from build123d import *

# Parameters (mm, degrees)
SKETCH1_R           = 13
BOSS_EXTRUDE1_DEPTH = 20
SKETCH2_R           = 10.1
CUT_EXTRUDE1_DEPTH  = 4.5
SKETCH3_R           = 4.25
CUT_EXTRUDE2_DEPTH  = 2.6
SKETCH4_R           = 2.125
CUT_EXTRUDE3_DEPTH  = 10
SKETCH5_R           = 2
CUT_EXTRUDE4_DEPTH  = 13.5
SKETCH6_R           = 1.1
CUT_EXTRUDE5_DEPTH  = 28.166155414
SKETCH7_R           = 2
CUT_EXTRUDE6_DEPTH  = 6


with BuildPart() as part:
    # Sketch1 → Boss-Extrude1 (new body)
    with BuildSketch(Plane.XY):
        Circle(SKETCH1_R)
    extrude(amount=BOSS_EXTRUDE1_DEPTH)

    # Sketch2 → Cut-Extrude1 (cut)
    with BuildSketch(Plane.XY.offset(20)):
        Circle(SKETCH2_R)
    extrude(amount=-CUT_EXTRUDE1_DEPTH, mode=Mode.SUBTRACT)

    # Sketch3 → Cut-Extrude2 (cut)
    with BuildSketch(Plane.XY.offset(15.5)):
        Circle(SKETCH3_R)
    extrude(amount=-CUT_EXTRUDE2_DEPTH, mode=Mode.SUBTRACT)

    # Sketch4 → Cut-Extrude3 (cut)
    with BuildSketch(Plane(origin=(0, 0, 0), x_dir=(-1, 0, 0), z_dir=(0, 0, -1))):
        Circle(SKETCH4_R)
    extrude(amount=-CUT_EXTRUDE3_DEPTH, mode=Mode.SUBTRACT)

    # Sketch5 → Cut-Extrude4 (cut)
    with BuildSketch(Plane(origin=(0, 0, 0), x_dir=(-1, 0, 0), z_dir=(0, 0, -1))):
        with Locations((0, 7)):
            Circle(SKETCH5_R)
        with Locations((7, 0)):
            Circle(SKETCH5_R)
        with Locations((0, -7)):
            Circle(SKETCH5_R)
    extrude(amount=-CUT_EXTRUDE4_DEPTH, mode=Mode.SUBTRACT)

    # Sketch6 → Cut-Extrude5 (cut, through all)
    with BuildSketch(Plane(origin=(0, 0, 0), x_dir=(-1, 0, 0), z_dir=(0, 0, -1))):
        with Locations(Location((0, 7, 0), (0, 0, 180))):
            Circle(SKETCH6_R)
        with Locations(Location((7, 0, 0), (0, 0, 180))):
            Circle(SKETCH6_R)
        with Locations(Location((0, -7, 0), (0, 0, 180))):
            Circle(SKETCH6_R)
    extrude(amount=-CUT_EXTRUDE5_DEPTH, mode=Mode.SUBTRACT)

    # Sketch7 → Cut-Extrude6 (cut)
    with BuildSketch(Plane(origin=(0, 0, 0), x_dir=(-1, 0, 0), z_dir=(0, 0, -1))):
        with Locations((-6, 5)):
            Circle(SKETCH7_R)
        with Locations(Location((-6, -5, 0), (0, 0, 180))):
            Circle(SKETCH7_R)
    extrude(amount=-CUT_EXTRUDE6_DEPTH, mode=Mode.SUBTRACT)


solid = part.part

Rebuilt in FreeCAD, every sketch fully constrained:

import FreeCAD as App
import Part
import Sketcher
from FreeCAD import Vector
Q = App.Units.Quantity

doc = App.newDocument("Part")
body = doc.addObject("PartDesign::Body", "Body")

# Sketch on XY plane
sketch1 = body.newObject("Sketcher::SketchObject", "Sketch")
sketch1.AttachmentSupport = (doc.getObject("XY_Plane"), [""])
sketch1.MapMode = "FlatFace"
sketch1.addGeometry(Part.Circle(Vector(0, 0, 0), Vector(0, 0, 1), 13), False)
sketch1.addConstraint(Sketcher.Constraint("Coincident", 0, 3, -1, 1))
sketch1.addConstraint(Sketcher.Constraint("Diameter", 0, Q("26 mm")))
pad1 = body.newObject("PartDesign::Pad", "Pad")
pad1.Profile = sketch1
pad1.Length = 20

# Sketch on XY plane
sketch2 = body.newObject("Sketcher::SketchObject", "Sketch001")
sketch2.AttachmentSupport = (doc.getObject("XY_Plane"), [""])
sketch2.MapMode = "FlatFace"
sketch2.AttachmentOffset = App.Placement(Vector(0, 0, 20), App.Rotation())
sketch2.addGeometry(Part.Circle(Vector(0, 0, 0), Vector(0, 0, 1), 10), False)
sketch2.addConstraint(Sketcher.Constraint("Coincident", 0, 3, -1, 1))
sketch2.addConstraint(Sketcher.Constraint("Diameter", 0, Q("20.2 mm")))
pocket1 = body.newObject("PartDesign::Pocket", "Pocket")
pocket1.Profile = sketch2
pocket1.Length = 4.5

# Sketch on XY plane
sketch3 = body.newObject("Sketcher::SketchObject", "Sketch002")
sketch3.AttachmentSupport = (doc.getObject("XY_Plane"), [""])
sketch3.MapMode = "FlatFace"
sketch3.AttachmentOffset = App.Placement(Vector(0, 0, 15.5), App.Rotation())
sketch3.addGeometry(Part.Circle(Vector(0, 0, 0), Vector(0, 0, 1), 4.2), False)
sketch3.addConstraint(Sketcher.Constraint("Coincident", 0, 3, -1, 1))
sketch3.addConstraint(Sketcher.Constraint("Diameter", 0, Q("8.5 mm")))
pocket2 = body.newObject("PartDesign::Pocket", "Pocket001")
pocket2.Profile = sketch3
pocket2.Length = 2.6

# Sketch on XY plane
sketch4 = body.newObject("Sketcher::SketchObject", "Sketch003")
sketch4.AttachmentSupport = (doc.getObject("XY_Plane"), [""])
sketch4.MapMode = "FlatFace"
sketch4.addGeometry(Part.Circle(Vector(0, 0, 0), Vector(0, 0, 1), 2.1), False)
sketch4.addConstraint(Sketcher.Constraint("Coincident", 0, 3, -1, 1))
sketch4.addConstraint(Sketcher.Constraint("Diameter", 0, Q("4.25 mm")))
pocket3 = body.newObject("PartDesign::Pocket", "Pocket002")
pocket3.Profile = sketch4
pocket3.Length = 10
pocket3.Reversed = True

# Sketch on XY plane
sketch5 = body.newObject("Sketcher::SketchObject", "Sketch004")
sketch5.AttachmentSupport = (doc.getObject("XY_Plane"), [""])
sketch5.MapMode = "FlatFace"
sketch5.addGeometry(Part.Circle(Vector(0, 7, 0), Vector(0, 0, 1), 2), False)
sketch5.addGeometry(Part.Circle(Vector(-7, 0, 0), Vector(0, 0, 1), 2), False)
sketch5.addGeometry(Part.Circle(Vector(0, -7, 0), Vector(0, 0, 1), 2), False)
sketch5.addConstraint(Sketcher.Constraint("Equal", 0, 1))
sketch5.addConstraint(Sketcher.Constraint("Equal", 1, 2))
sketch5.addConstraint(Sketcher.Constraint("Symmetric", 0, 3, 2, 3, -1, 1))
sketch5.addConstraint(Sketcher.Constraint("PointOnObject", 0, 3, -2))
sketch5.addConstraint(Sketcher.Constraint("PointOnObject", 1, 3, -1))
sketch5.addConstraint(Sketcher.Constraint("Diameter", 0, Q("4 mm")))
sketch5.addConstraint(Sketcher.Constraint("DistanceY", -1, 1, 0, 3, Q("7 mm")))
sketch5.addConstraint(Sketcher.Constraint("DistanceX", 1, 3, -1, 1, Q("7 mm")))
pocket4 = body.newObject("PartDesign::Pocket", "Pocket003")
pocket4.Profile = sketch5
pocket4.Length = 13.5
pocket4.Reversed = True

# Sketch on XY plane
sketch6 = body.newObject("Sketcher::SketchObject", "Sketch005")
sketch6.AttachmentSupport = (doc.getObject("XY_Plane"), [""])
sketch6.MapMode = "FlatFace"
sketch6.addGeometry(Part.Circle(Vector(0, 7, 0), Vector(0, 0, 1), 1.1), False)
sketch6.addGeometry(Part.Circle(Vector(-7, 0, 0), Vector(0, 0, 1), 1.1), False)
sketch6.addGeometry(Part.Circle(Vector(0, -7, 0), Vector(0, 0, 1), 1.1), False)
sketch6.addConstraint(Sketcher.Constraint("Equal", 0, 1))
sketch6.addConstraint(Sketcher.Constraint("Equal", 1, 2))
sketch6.addConstraint(Sketcher.Constraint("Symmetric", 0, 3, 2, 3, -1, 1))
sketch6.addConstraint(Sketcher.Constraint("PointOnObject", 0, 3, -2))
sketch6.addConstraint(Sketcher.Constraint("PointOnObject", 1, 3, -1))
sketch6.addConstraint(Sketcher.Constraint("Diameter", 0, Q("2.2 mm")))
sketch6.addConstraint(Sketcher.Constraint("DistanceY", -1, 1, 0, 3, Q("7 mm")))
sketch6.addConstraint(Sketcher.Constraint("DistanceX", 1, 3, -1, 1, Q("7 mm")))
pocket5 = body.newObject("PartDesign::Pocket", "Pocket004")
pocket5.Profile = sketch6
pocket5.Type = "ThroughAll"
pocket5.Reversed = True

# Sketch on XY plane
sketch7 = body.newObject("Sketcher::SketchObject", "Sketch006")
sketch7.AttachmentSupport = (doc.getObject("XY_Plane"), [""])
sketch7.MapMode = "FlatFace"
sketch7.addGeometry(Part.Circle(Vector(6, 5, 0), Vector(0, 0, 1), 2), False)
sketch7.addGeometry(Part.Circle(Vector(6, -5, 0), Vector(0, 0, 1), 2), False)
sketch7.addConstraint(Sketcher.Constraint("Equal", 0, 1))
sketch7.addConstraint(Sketcher.Constraint("Symmetric", 0, 3, 1, 3, -1))
sketch7.addConstraint(Sketcher.Constraint("Diameter", 0, Q("4 mm")))
sketch7.addConstraint(Sketcher.Constraint("DistanceX", -1, 1, 0, 3, Q("6 mm")))
sketch7.addConstraint(Sketcher.Constraint("DistanceY", -1, 1, 0, 3, Q("5 mm")))
pocket6 = body.newObject("PartDesign::Pocket", "Pocket005")
pocket6.Profile = sketch7
pocket6.Length = 6
pocket6.Reversed = True

doc.recompute()
